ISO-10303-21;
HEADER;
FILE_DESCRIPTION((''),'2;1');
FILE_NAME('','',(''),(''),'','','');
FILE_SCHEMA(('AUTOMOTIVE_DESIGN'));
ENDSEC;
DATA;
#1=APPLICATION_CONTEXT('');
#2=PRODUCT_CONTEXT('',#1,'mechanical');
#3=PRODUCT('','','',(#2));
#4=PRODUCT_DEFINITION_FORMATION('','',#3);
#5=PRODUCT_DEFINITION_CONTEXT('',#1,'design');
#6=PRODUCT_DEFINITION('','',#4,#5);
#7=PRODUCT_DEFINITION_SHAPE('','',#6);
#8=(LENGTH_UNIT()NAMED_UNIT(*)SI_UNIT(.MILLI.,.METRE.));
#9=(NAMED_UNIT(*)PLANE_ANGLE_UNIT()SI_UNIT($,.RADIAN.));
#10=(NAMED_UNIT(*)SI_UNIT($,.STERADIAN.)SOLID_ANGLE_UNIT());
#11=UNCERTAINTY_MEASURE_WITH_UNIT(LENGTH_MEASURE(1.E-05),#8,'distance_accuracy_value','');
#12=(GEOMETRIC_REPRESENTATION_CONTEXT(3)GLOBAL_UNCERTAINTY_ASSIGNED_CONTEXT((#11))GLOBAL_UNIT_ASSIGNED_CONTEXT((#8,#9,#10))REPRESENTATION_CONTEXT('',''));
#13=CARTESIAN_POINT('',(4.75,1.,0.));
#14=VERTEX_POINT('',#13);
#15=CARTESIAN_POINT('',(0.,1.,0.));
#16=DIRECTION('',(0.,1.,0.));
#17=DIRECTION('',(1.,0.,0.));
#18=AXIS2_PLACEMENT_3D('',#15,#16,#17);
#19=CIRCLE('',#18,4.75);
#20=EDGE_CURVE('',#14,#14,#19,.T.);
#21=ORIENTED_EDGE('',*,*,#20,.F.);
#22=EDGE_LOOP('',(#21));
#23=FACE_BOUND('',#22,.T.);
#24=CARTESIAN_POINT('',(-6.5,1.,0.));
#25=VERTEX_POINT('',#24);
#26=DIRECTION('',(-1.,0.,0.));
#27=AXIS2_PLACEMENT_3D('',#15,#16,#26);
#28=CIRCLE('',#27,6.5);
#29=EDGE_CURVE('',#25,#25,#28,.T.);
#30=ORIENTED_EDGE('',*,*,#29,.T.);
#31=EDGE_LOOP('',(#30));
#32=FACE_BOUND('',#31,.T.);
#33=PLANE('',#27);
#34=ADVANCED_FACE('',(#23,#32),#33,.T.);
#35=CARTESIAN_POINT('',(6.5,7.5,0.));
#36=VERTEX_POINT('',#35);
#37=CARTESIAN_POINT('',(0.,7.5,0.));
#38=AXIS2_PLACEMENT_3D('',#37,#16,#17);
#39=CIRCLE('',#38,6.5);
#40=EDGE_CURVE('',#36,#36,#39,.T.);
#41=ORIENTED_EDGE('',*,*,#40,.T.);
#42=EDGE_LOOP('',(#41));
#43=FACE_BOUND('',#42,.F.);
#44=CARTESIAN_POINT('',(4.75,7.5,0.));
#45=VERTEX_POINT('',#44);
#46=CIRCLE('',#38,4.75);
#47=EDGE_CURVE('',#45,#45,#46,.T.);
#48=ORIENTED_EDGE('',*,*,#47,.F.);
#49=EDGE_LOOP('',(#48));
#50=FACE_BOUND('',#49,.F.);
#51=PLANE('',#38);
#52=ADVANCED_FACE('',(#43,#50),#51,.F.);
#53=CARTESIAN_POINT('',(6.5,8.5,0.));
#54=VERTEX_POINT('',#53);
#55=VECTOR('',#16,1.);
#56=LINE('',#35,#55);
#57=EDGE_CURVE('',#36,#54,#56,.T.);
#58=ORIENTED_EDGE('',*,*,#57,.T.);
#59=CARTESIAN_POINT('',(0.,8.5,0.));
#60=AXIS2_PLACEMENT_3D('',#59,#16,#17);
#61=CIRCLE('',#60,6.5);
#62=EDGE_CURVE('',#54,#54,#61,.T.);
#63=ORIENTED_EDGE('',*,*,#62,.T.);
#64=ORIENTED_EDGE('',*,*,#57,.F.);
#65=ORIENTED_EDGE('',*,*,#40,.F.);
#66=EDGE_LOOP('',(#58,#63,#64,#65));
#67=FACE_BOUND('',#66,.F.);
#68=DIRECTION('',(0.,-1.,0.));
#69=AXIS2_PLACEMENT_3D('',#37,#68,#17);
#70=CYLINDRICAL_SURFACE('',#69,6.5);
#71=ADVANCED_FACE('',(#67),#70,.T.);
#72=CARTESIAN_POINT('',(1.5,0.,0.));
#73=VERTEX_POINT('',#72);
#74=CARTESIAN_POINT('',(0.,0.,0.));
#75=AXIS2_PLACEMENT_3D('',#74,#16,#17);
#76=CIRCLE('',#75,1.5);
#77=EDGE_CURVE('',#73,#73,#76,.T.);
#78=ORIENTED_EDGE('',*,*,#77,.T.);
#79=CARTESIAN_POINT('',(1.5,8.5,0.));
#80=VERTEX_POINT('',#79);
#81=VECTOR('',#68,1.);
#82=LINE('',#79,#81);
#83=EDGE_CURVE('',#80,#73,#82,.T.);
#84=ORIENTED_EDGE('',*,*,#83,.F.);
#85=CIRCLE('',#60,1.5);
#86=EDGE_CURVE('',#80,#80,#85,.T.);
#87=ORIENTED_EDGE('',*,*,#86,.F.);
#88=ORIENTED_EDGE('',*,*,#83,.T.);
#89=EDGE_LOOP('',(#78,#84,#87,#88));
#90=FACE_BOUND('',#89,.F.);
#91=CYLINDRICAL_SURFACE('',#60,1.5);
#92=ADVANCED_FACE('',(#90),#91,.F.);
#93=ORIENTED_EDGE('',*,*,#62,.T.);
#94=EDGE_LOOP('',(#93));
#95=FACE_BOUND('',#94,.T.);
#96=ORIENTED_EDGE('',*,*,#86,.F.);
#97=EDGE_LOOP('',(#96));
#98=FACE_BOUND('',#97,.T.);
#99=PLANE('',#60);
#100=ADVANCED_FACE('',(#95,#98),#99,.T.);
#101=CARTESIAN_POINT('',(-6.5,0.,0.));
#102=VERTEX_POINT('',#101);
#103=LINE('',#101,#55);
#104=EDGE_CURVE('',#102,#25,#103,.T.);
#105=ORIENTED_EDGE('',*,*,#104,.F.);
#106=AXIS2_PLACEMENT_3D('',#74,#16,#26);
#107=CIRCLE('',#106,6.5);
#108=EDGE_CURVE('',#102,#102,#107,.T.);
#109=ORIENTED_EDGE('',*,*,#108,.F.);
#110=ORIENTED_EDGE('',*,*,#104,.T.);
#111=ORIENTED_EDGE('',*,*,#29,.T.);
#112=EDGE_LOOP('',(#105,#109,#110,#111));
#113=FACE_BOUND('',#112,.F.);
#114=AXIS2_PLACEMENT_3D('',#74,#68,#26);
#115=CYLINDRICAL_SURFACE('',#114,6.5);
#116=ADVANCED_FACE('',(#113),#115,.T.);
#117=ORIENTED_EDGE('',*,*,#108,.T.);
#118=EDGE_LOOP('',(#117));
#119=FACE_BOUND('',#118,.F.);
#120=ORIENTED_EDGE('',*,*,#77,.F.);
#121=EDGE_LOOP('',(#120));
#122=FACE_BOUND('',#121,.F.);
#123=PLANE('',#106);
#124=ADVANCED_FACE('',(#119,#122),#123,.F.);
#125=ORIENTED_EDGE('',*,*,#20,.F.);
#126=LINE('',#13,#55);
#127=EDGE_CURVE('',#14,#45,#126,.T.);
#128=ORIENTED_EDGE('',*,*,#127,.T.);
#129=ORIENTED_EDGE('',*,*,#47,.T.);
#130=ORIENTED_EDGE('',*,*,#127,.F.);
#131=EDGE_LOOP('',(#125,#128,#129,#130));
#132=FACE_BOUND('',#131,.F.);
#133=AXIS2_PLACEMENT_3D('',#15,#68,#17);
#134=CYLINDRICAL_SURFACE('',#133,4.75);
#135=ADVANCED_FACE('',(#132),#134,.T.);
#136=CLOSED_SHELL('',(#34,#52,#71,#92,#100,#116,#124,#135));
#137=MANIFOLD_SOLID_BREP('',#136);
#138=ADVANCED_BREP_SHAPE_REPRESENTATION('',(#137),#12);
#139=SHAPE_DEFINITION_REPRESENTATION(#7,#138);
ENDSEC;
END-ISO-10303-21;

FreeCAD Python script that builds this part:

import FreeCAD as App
import Part
import Sketcher
from FreeCAD import Vector

doc = App.newDocument("Part")
body = doc.addObject("PartDesign::Body", "Body")

# Sketch on XZ plane
sketch1 = doc.addObject("Sketcher::SketchObject", "Sketch")
body.addObject(sketch1)
sketch1.AttachmentSupport = (doc.XZ_Plane, [""])
sketch1.MapMode = "FlatFace"
sketch1.addGeometry(Part.Circle(Vector(0, 0, 0), Vector(0, 0, 1), 6.5), False)
sketch1.addConstraint([
    Sketcher.Constraint("Coincident", 0, 3, -1, 1),
    Sketcher.Constraint("Diameter", 0, 13.0),
])
pad1 = doc.addObject("PartDesign::Pad", "Pad")
body.addObject(pad1)
pad1.Profile = sketch1
pad1.Length = 1
pad1.Reversed = True

# Sketch on XZ plane
sketch2 = doc.addObject("Sketcher::SketchObject", "Sketch001")
body.addObject(sketch2)
sketch2.AttachmentSupport = (doc.XZ_Plane, [""])
sketch2.MapMode = "FlatFace"
sketch2.AttachmentOffset = App.Placement(Vector(0, 0, -1), App.Rotation())
sketch2.addGeometry(Part.Circle(Vector(0, 0, 0), Vector(0, 0, 1), 4.75), False)
sketch2.addConstraint([
    Sketcher.Constraint("Coincident", 0, 3, -1, 1),
    Sketcher.Constraint("Diameter", 0, 9.5),
])
pad2 = doc.addObject("PartDesign::Pad", "Pad001")
body.addObject(pad2)
pad2.Profile = sketch2
pad2.Length = 6.5
pad2.Reversed = True

# Sketch on XZ plane
sketch3 = doc.addObject("Sketcher::SketchObject", "Sketch002")
body.addObject(sketch3)
sketch3.AttachmentSupport = (doc.XZ_Plane, [""])
sketch3.MapMode = "FlatFace"
sketch3.AttachmentOffset = App.Placement(Vector(0, 0, -7.5), App.Rotation())
sketch3.addGeometry(Part.Circle(Vector(0, 0, 0), Vector(0, 0, 1), 6.5), False)
sketch3.addConstraint([
    Sketcher.Constraint("Coincident", 0, 3, -1, 1),
    Sketcher.Constraint("Diameter", 0, 13.0),
])
pad3 = doc.addObject("PartDesign::Pad", "Pad002")
body.addObject(pad3)
pad3.Profile = sketch3
pad3.Length = 1
pad3.Reversed = True

# Sketch on XZ plane
sketch4 = doc.addObject("Sketcher::SketchObject", "Sketch003")
body.addObject(sketch4)
sketch4.AttachmentSupport = (doc.XZ_Plane, [""])
sketch4.MapMode = "FlatFace"
sketch4.AttachmentOffset = App.Placement(Vector(0, 0, -8.5), App.Rotation())
sketch4.addGeometry(Part.Circle(Vector(0, 0, 0), Vector(0, 0, 1), 1.5), False)
sketch4.addConstraint([
    Sketcher.Constraint("Coincident", 0, 3, -1, 1),
    Sketcher.Constraint("Diameter", 0, 3.0),
])
pocket1 = doc.addObject("PartDesign::Pocket", "Pocket")
body.addObject(pocket1)
pocket1.Profile = sketch4
pocket1.Length = 10
pocket1.Reversed = True

doc.recompute()
